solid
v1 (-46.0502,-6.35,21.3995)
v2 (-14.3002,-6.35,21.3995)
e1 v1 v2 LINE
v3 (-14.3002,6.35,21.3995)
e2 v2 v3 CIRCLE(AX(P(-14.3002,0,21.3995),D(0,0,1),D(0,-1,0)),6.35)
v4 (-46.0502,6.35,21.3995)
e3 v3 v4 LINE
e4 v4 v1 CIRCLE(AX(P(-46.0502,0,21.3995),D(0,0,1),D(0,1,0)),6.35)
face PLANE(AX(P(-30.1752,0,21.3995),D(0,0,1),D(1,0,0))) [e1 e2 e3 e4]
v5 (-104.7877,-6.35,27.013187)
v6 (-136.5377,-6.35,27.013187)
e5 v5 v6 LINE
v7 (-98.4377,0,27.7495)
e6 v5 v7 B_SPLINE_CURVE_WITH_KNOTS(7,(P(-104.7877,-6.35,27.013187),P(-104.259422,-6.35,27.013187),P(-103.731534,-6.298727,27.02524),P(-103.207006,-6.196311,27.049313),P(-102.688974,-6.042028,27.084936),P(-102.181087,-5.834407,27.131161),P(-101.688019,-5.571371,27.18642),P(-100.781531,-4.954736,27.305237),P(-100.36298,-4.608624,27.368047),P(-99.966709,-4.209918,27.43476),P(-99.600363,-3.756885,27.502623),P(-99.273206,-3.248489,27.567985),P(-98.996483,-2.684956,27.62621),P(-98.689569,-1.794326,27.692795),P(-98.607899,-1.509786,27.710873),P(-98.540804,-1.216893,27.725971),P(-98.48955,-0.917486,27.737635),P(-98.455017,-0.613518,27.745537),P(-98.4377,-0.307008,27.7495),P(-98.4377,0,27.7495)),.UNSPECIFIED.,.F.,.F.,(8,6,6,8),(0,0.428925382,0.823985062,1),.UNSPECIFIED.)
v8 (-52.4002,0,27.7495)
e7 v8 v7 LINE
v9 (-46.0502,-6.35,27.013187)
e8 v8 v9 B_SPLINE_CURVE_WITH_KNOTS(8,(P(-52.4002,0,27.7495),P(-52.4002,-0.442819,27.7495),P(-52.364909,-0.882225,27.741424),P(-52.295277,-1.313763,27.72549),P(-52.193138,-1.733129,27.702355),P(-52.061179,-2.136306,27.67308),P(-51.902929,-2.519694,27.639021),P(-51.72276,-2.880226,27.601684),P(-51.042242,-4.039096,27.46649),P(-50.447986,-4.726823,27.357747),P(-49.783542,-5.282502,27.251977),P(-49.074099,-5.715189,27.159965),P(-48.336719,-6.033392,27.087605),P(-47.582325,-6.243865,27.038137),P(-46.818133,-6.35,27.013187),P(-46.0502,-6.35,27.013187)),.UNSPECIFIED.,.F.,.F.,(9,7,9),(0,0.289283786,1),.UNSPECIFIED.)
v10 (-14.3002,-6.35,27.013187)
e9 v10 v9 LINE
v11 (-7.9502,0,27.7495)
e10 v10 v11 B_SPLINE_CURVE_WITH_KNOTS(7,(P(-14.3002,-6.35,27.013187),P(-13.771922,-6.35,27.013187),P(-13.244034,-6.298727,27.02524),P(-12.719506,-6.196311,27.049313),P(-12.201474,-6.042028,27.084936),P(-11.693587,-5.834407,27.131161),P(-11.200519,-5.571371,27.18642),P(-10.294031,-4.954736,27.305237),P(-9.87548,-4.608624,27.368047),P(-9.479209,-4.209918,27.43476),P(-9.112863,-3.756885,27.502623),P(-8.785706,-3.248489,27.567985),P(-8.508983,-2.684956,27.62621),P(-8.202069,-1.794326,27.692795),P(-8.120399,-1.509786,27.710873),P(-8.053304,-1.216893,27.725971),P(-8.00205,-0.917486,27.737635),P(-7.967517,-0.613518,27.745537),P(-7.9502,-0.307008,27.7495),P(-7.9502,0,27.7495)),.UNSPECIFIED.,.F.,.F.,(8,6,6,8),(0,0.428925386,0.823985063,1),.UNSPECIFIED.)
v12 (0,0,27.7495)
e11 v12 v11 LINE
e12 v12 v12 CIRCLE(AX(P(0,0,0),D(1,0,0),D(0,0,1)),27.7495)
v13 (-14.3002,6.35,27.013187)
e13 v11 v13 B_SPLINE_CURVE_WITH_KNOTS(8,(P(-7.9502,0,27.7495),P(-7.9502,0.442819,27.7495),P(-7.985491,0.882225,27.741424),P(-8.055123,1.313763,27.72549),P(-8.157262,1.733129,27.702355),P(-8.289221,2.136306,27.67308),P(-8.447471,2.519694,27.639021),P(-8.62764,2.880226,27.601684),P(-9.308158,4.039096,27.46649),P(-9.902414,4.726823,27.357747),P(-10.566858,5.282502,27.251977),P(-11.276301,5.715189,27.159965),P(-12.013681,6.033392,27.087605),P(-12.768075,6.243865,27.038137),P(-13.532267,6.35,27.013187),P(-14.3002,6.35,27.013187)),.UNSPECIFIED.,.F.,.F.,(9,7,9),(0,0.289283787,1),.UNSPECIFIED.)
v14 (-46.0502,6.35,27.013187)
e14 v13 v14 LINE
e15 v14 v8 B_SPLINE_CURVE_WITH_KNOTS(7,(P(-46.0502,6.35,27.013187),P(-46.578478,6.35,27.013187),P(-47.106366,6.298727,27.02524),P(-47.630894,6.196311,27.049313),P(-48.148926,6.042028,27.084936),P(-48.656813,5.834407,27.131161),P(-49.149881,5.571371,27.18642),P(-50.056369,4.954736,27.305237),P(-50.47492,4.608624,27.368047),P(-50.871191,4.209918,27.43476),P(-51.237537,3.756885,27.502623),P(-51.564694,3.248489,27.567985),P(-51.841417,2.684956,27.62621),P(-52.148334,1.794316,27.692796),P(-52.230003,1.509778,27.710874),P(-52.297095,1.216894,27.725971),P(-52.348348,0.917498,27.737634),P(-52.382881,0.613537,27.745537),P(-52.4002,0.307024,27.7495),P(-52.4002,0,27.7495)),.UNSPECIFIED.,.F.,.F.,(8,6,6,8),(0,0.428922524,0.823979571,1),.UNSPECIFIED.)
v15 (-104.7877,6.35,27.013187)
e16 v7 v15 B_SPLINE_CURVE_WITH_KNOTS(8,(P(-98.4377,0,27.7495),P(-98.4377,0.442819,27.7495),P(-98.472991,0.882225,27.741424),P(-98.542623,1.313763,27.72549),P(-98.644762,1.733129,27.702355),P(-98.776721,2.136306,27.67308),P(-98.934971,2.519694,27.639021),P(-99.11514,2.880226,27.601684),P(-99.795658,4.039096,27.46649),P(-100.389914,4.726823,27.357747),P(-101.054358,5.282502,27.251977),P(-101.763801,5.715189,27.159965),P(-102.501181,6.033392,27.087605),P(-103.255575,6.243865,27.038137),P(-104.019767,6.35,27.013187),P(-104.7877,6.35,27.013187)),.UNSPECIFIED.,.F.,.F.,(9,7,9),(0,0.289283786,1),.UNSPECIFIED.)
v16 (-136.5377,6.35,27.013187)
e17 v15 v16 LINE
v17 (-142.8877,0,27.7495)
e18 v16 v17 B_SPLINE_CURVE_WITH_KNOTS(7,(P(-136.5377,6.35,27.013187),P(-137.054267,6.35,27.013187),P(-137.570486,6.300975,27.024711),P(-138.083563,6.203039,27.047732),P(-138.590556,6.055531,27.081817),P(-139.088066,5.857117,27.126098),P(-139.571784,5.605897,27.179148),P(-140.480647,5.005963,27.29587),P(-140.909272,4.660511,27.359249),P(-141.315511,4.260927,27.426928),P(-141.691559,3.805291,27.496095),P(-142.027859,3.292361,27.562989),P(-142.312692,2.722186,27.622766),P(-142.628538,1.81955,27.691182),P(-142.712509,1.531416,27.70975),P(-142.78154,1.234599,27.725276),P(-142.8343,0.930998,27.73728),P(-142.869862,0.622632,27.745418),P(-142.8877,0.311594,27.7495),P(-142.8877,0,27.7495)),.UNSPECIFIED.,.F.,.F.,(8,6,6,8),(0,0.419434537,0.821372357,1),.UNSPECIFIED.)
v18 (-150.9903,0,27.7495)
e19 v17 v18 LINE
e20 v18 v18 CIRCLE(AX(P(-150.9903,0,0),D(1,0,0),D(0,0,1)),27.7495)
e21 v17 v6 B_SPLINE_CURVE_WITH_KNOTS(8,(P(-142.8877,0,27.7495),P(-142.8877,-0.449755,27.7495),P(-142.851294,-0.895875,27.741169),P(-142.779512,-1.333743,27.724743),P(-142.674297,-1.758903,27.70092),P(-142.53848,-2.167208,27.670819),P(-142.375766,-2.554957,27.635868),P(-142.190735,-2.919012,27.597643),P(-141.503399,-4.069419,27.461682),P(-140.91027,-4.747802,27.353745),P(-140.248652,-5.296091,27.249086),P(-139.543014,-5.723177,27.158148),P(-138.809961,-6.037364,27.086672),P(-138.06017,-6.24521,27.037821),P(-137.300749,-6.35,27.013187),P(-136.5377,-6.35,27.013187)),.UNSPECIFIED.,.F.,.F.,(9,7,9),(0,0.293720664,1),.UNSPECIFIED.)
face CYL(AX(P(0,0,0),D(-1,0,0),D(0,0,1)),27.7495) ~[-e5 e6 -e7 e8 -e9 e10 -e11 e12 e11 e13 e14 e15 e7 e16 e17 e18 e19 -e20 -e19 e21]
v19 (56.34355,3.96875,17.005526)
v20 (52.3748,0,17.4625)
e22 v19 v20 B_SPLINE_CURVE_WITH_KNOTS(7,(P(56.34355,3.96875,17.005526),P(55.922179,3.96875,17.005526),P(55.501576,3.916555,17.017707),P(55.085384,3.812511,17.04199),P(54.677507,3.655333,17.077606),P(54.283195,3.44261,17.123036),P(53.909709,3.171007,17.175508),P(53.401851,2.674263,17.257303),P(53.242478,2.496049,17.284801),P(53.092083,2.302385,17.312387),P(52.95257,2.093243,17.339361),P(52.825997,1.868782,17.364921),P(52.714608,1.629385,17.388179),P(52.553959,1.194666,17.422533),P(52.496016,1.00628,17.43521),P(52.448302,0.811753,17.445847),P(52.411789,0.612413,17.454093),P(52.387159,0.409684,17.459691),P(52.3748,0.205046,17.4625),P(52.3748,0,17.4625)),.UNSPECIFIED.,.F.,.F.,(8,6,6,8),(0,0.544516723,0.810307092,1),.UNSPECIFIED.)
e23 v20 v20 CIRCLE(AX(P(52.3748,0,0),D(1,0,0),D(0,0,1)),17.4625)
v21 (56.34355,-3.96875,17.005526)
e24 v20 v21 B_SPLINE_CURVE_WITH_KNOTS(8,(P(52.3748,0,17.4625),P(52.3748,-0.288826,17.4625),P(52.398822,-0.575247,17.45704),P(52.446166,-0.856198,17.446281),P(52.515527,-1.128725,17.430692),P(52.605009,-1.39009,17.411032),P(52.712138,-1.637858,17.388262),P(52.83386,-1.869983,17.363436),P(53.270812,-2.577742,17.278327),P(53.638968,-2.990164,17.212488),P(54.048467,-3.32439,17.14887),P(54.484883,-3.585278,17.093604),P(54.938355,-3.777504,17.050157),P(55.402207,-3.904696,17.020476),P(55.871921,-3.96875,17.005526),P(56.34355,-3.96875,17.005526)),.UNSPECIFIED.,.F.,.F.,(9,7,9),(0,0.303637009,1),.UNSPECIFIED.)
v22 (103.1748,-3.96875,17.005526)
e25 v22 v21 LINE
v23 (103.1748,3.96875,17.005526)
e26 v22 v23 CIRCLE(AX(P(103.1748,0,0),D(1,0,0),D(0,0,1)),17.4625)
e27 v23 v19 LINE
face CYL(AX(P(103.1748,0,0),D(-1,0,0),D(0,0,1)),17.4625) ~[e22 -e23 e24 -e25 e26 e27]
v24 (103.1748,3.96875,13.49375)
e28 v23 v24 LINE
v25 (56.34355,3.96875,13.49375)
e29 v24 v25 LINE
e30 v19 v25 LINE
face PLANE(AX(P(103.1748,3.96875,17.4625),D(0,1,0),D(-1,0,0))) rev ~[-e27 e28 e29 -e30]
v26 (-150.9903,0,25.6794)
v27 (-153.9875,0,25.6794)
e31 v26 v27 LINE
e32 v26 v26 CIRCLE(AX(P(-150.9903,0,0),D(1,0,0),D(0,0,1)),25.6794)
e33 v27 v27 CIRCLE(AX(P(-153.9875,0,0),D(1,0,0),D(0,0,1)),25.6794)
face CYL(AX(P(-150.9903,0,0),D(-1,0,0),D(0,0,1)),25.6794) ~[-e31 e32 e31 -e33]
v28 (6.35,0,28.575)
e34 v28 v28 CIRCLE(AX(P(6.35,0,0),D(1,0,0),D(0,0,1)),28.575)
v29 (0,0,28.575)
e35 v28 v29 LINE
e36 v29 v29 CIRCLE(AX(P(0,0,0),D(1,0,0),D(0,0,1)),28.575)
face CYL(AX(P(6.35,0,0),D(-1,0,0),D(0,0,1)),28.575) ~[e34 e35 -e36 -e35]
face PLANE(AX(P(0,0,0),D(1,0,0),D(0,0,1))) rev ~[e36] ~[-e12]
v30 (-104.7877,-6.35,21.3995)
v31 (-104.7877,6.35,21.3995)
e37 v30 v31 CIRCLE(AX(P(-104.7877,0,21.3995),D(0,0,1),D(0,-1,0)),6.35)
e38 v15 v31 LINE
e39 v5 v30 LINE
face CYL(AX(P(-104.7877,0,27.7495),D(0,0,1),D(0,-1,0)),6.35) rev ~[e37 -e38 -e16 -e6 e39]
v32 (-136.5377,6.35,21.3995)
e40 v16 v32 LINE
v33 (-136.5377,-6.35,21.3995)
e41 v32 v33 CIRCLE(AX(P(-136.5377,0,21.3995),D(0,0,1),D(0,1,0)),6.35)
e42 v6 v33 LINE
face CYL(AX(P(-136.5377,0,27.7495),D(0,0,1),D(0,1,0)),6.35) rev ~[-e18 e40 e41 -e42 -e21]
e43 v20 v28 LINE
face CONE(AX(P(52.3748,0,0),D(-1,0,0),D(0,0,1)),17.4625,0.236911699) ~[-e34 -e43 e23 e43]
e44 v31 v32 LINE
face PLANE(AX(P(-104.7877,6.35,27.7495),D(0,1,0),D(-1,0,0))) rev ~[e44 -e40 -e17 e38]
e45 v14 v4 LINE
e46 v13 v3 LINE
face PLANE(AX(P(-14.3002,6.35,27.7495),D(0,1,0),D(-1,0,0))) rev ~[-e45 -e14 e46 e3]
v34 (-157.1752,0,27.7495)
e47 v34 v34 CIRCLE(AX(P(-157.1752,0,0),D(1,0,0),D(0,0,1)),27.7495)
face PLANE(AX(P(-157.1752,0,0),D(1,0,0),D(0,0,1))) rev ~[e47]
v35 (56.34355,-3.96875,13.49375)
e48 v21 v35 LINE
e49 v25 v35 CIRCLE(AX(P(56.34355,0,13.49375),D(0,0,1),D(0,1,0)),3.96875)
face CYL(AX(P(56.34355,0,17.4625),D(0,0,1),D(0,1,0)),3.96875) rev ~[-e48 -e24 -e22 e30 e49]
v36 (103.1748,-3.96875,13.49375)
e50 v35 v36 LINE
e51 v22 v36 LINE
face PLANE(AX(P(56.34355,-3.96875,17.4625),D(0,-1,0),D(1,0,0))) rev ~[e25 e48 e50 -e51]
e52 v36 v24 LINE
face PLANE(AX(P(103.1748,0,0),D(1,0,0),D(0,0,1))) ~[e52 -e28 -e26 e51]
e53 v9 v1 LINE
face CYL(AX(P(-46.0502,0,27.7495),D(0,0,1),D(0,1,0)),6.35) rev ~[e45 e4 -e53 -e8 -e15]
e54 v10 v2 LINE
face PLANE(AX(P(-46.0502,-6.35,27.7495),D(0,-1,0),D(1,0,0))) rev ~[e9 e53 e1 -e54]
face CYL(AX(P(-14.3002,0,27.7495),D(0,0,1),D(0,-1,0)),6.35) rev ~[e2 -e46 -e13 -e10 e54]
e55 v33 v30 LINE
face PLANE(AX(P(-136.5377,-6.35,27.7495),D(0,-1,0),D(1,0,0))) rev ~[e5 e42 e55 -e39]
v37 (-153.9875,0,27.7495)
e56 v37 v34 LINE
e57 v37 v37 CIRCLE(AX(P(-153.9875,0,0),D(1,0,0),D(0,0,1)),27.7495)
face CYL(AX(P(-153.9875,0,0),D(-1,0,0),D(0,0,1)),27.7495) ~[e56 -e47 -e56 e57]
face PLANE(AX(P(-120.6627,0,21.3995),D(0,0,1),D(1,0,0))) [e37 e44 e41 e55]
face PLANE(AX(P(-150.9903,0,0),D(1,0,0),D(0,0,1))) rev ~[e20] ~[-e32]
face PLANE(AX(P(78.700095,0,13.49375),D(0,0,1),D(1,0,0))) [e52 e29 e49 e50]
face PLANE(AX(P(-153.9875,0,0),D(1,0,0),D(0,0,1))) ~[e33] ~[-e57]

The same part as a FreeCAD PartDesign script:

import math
import FreeCAD as App
import Part
import Sketcher
Q = App.Units.Quantity

doc = App.newDocument("Part")
body = doc.addObject("PartDesign::Body", "Body")

sketch1 = doc.addObject("Sketcher::SketchObject", "Sketch")
body.addObject(sketch1)
sketch1.AttachmentSupport = (doc.XZ_Plane, [""])
sketch1.MapMode = "FlatFace"
sketch1.addGeometry([
    Part.LineSegment(App.Vector(-157.2, 27.7, 0), App.Vector(-157.2, 0, 0)),
    Part.LineSegment(App.Vector(-157.2, 0, 0), App.Vector(103.2, 0, 0)),
    Part.LineSegment(App.Vector(103.2, 0, 0), App.Vector(103.2, 17.5, 0)),
    Part.LineSegment(App.Vector(103.2, 17.5, 0), App.Vector(52.4, 17.5, 0)),
    Part.LineSegment(App.Vector(52.4, 17.5, 0), App.Vector(6.3, 28.6, 0)),
    Part.LineSegment(App.Vector(6.3, 28.6, 0), App.Vector(0, 28.6, 0)),
    Part.LineSegment(App.Vector(0, 28.6, 0), App.Vector(0, 27.7, 0)),
    Part.LineSegment(App.Vector(0, 27.7, 0), App.Vector(-151, 27.7, 0)),
    Part.LineSegment(App.Vector(-151, 27.7, 0), App.Vector(-151, 25.7, 0)),
    Part.LineSegment(App.Vector(-151, 25.7, 0), App.Vector(-154, 25.7, 0)),
    Part.LineSegment(App.Vector(-154, 25.7, 0), App.Vector(-154, 27.7, 0)),
    Part.LineSegment(App.Vector(-154, 27.7, 0), App.Vector(-157.2, 27.7, 0)),
], False)
sketch1.addConstraint([
    Sketcher.Constraint("Coincident", 0, 2, 1, 1),
    Sketcher.Constraint("Coincident", 1, 2, 2, 1),
    Sketcher.Constraint("Coincident", 2, 2, 3, 1),
    Sketcher.Constraint("Coincident", 3, 2, 4, 1),
    Sketcher.Constraint("Coincident", 4, 2, 5, 1),
    Sketcher.Constraint("Coincident", 5, 2, 6, 1),
    Sketcher.Constraint("Coincident", 6, 2, 7, 1),
    Sketcher.Constraint("Coincident", 7, 2, 8, 1),
    Sketcher.Constraint("Coincident", 8, 2, 9, 1),
    Sketcher.Constraint("Coincident", 9, 2, 10, 1),
    Sketcher.Constraint("Coincident", 10, 2, 11, 1),
    Sketcher.Constraint("Coincident", 11, 2, 0, 1),
    Sketcher.Constraint("Vertical", 0),
    Sketcher.Constraint("Horizontal", 1),
    Sketcher.Constraint("Vertical", 2),
    Sketcher.Constraint("Horizontal", 3),
    Sketcher.Constraint("Horizontal", 5),
    Sketcher.Constraint("Vertical", 6),
    Sketcher.Constraint("Horizontal", 7),
    Sketcher.Constraint("Vertical", 8),
    Sketcher.Constraint("Horizontal", 9),
    Sketcher.Constraint("Vertical", 10),
    Sketcher.Constraint("Horizontal", 11),
    Sketcher.Constraint("PointOnObject", 0, 2, -1),
    Sketcher.Constraint("PointOnObject", 5, 2, -2),
    Sketcher.Constraint("Horizontal", 7, 2, 10, 2),
    Sketcher.Constraint("DistanceX", 3, 2, 3, 1, Q("2 in")),
    Sketcher.Constraint("DistanceX", 1, 1, 1, 2, Q("10.25 in")),
    Sketcher.Constraint("DistanceX", 5, 2, 5, 1, Q("0.25 in")),
    Sketcher.Constraint("DistanceX", 9, 2, 9, 1, Q("0.118 in")),
    Sketcher.Constraint("DistanceY", 2, 1, 2, 2, Q("0.6875 in")),
    Sketcher.Constraint("DistanceX", 7, 2, 7, 1, Q("5.9445 in")),
    Sketcher.Constraint("DistanceX", 11, 2, 11, 1, Q("0.1255 in")),
    Sketcher.Constraint("DistanceY", 0, 2, 0, 1, Q("1.0925 in")),
    Sketcher.Constraint("DistanceY", 6, 2, 6, 1, Q("0.0325 in")),
    Sketcher.Constraint("DistanceY", 8, 2, 8, 1, Q("0.0815 in")),
])
revolution = doc.addObject("PartDesign::Revolution", "Revolution")
body.addObject(revolution)
revolution.Profile = sketch1
revolution.ReferenceAxis = (sketch1, ["H_Axis"])
revolution.Angle = 360

sketch2 = doc.addObject("Sketcher::SketchObject", "Sketch001")
body.addObject(sketch2)
sketch2.AttachmentSupport = (doc.XY_Plane, [""])
sketch2.MapMode = "FlatFace"
sketch2.AttachmentOffset = App.Placement(App.Vector(0, 0, 1.0925 * 25.4), App.Rotation())
sketch2.addGeometry([
    Part.LineSegment(App.Vector(-105, 6, 0), App.Vector(-137, 6, 0)),
    Part.ArcOfCircle(Part.Circle(App.Vector(-137, 0, 0), App.Vector(0, 0, 1), 6), math.radians(90), math.radians(270)),
    Part.LineSegment(App.Vector(-137, -6, 0), App.Vector(-105, -6, 0)),
    Part.ArcOfCircle(Part.Circle(App.Vector(-105, 0, 0), App.Vector(0, 0, 1), 6), math.radians(-90), math.radians(90)),
    Part.LineSegment(App.Vector(-14, 6, 0), App.Vector(-46, 6, 0)),
    Part.ArcOfCircle(Part.Circle(App.Vector(-46, 0, 0), App.Vector(0, 0, 1), 6), math.radians(90), math.radians(270)),
    Part.LineSegment(App.Vector(-46, -6, 0), App.Vector(-14, -6, 0)),
    Part.ArcOfCircle(Part.Circle(App.Vector(-14, 0, 0), App.Vector(0, 0, 1), 6), math.radians(-90), math.radians(90)),
], False)
sketch2.addConstraint([
    Sketcher.Constraint("Tangent", 0, 2, 1, 1),
    Sketcher.Constraint("Tangent", 1, 2, 2, 1),
    Sketcher.Constraint("Tangent", 2, 2, 3, 1),
    Sketcher.Constraint("Tangent", 3, 2, 0, 1),
    Sketcher.Constraint("Tangent", 4, 2, 5, 1),
    Sketcher.Constraint("Tangent", 5, 2, 6, 1),
    Sketcher.Constraint("Tangent", 6, 2, 7, 1),
    Sketcher.Constraint("Tangent", 7, 2, 4, 1),
    Sketcher.Constraint("Horizontal", 0),
    Sketcher.Constraint("Horizontal", 2),
    Sketcher.Constraint("Horizontal", 4),
    Sketcher.Constraint("Horizontal", 6),
    Sketcher.Constraint("Equal", 3, 5),
    Sketcher.Constraint("PointOnObject", 1, 3, -1),
    Sketcher.Constraint("PointOnObject", 5, 3, -1),
    Sketcher.Constraint("Equal", 2, 4),
    Sketcher.Constraint("Radius", 1, Q("0.25 in")),
    Sketcher.Constraint("DistanceX", 0, 2, 0, 1, Q("1.25 in")),
    Sketcher.Constraint("DistanceX", 5, 3, -1, 1, Q("1.813 in")),
    Sketcher.Constraint("DistanceX", 3, 3, 5, 3, Q("2.3125 in")),
])
pocket1 = doc.addObject("PartDesign::Pocket", "Pocket")
body.addObject(pocket1)
pocket1.Profile = sketch2
pocket1.Length = Q("0.25 in")

sketch3 = doc.addObject("Sketcher::SketchObject", "Sketch002")
body.addObject(sketch3)
sketch3.AttachmentSupport = (doc.XY_Plane, [""])
sketch3.MapMode = "FlatFace"
sketch3.AttachmentOffset = App.Placement(App.Vector(0, 0, 0.6875 * 25.4), App.Rotation())
sketch3.addGeometry([
    Part.LineSegment(App.Vector(103.2, 4, 0), App.Vector(56.3, 4, 0)),
    Part.ArcOfCircle(Part.Circle(App.Vector(56.3, 0, 0), App.Vector(0, 0, 1), 4), math.radians(90), math.radians(270)),
    Part.LineSegment(App.Vector(56.3, -4, 0), App.Vector(103.2, -4, 0)),
    Part.LineSegment(App.Vector(103.2, -4, 0), App.Vector(103.2, 4, 0)),
], False)
sketch3.addConstraint([
    Sketcher.Constraint("Tangent", 0, 2, 1, 1),
    Sketcher.Constraint("Tangent", 1, 2, 2, 1),
    Sketcher.Constraint("Coincident", 2, 2, 3, 1),
    Sketcher.Constraint("Coincident", 3, 2, 0, 1),
    Sketcher.Constraint("Horizontal", 0),
    Sketcher.Constraint("Horizontal", 2),
    Sketcher.Constraint("Vertical", 3),
    Sketcher.Constraint("PointOnObject", 1, 3, -1),
    Sketcher.Constraint("Radius", 1, Q("0.15625 in")),
    Sketcher.Constraint("DistanceX", 0, 2, 0, 1, Q("1.84375 in")),
    Sketcher.Constraint("DistanceX", -1, 1, 2, 2, Q("4.062 in")),
])
pocket2 = doc.addObject("PartDesign::Pocket", "Pocket001")
body.addObject(pocket2)
pocket2.Profile = sketch3
pocket2.Length = Q("0.15625 in")

doc.recompute()
